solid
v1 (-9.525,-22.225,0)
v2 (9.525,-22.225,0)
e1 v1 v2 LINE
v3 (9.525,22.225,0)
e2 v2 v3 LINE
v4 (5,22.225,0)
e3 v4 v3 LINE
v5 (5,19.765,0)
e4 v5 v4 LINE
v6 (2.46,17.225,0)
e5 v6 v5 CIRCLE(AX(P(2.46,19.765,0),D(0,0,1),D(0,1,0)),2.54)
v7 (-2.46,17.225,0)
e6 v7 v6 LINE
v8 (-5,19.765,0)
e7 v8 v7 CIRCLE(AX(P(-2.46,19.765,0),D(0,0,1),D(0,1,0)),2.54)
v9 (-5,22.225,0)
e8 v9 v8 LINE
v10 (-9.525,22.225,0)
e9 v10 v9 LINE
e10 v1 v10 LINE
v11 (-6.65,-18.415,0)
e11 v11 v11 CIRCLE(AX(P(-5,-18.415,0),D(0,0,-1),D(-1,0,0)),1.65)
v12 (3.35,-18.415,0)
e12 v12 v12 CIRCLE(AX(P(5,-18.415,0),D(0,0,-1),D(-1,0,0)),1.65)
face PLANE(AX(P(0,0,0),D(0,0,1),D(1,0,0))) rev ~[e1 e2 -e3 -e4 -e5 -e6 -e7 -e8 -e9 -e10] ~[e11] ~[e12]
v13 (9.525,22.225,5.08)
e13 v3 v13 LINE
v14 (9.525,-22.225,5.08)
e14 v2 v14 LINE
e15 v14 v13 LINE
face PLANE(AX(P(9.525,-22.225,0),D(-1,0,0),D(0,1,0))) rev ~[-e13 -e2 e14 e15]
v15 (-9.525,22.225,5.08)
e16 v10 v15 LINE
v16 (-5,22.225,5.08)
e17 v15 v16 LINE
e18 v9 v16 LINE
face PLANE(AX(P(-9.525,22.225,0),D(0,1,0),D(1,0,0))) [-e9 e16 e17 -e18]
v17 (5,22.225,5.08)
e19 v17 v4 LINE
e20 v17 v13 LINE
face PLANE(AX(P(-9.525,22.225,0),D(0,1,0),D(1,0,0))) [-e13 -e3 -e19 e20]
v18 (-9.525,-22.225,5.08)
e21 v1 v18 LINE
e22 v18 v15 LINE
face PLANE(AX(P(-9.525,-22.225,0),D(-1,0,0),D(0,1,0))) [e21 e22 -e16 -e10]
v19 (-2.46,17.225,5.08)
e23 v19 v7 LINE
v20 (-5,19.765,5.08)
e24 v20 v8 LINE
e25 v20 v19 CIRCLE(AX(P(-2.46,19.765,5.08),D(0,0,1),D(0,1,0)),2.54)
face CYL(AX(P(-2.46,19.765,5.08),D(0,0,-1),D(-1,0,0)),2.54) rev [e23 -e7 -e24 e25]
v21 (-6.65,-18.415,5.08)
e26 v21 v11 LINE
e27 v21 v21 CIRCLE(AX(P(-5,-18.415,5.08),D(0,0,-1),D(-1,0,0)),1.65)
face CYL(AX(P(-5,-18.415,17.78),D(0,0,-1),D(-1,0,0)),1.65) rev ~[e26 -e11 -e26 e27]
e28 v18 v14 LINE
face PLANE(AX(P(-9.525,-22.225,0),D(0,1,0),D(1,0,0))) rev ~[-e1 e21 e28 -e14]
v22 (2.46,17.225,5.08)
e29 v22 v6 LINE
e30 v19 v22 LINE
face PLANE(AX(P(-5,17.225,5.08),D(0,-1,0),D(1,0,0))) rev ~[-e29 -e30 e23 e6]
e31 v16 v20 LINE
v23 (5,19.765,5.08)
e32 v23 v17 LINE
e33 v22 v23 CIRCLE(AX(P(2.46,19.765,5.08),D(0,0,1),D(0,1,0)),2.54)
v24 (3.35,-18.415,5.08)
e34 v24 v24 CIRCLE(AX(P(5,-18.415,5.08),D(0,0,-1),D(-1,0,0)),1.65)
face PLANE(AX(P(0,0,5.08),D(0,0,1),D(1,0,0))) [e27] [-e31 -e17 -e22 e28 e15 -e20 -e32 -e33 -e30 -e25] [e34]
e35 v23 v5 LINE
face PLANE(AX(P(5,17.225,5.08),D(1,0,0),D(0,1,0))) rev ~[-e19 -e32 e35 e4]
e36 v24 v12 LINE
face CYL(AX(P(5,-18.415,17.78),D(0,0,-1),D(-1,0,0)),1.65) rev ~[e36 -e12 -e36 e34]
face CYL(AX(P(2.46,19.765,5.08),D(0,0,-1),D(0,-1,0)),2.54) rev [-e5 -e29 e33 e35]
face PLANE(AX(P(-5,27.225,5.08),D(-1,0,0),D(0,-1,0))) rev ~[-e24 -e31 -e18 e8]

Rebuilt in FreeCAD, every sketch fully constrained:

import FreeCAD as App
import Part
import Sketcher

V = App.Vector
Q = App.Units.Quantity


def edges_at(feature, points):
    """Names of the edges that pass closest to the given points."""
    edges = feature.Shape.Edges
    near = lambda p: min(range(len(edges)), key=lambda i: edges[i].distToShape(Part.Vertex(*p))[0])
    return sorted({f"Edge{near(p) + 1}" for p in points})


def add_polygon(sketch, points):
    """Adds a closed chain of lines whose ends are joined by coincident constraints."""
    first, n = sketch.GeometryCount, len(points)
    for a, b in zip(points, points[1:] + points[:1]):
        sketch.addGeometry(Part.LineSegment(App.Vector(*a, 0), App.Vector(*b, 0)), False)
    for i in range(n):
        sketch.addConstraint(Sketcher.Constraint("Coincident", first + i, 2, first + (i + 1) % n, 1))

doc = App.newDocument("Part")
body = doc.addObject("PartDesign::Body", "Body")

# Sketch on XY plane
sketch1 = doc.addObject("Sketcher::SketchObject", "Sketch")
body.addObject(sketch1)
sketch1.AttachmentSupport = (doc.XY_Plane, [""])
sketch1.MapMode = "FlatFace"
add_polygon(sketch1, [(-10, 22), (-10, -22), (10, -22), (10, 22)])  # lines 0-3
sketch1.addConstraint([
    Sketcher.Constraint("Vertical", 0),
    Sketcher.Constraint("Horizontal", 1),
    Sketcher.Constraint("Vertical", 2),
    Sketcher.Constraint("Horizontal", 3),
    Sketcher.Constraint("Symmetric", 0, 2, 2, 2, -1, 1),
    Sketcher.Constraint("DistanceX", 1, 1, 1, 2, Q("0.75 in")),
    Sketcher.Constraint("DistanceY", 0, 2, 0, 1, Q("1.75 in")),
])
pad1 = doc.addObject("PartDesign::Pad", "Pad")
body.addObject(pad1)
pad1.Profile = sketch1
pad1.Length = Q("0.2 in")

# Sketch on XY plane
sketch2 = doc.addObject("Sketcher::SketchObject", "Sketch001")
body.addObject(sketch2)
sketch2.AttachmentSupport = (doc.XY_Plane, [""])
sketch2.MapMode = "FlatFace"
sketch2.AttachmentOffset = App.Placement(V(0, 0, 0.2 * 25.4), App.Rotation())
add_polygon(sketch2, [(-5, 27), (-5, 17), (5, 17), (5, 27)])  # lines 0-3
sketch2.addConstraint([
    Sketcher.Constraint("Vertical", 0),
    Sketcher.Constraint("Horizontal", 1),
    Sketcher.Constraint("Vertical", 2),
    Sketcher.Constraint("Horizontal", 3),
    Sketcher.Constraint("Equal", 3, 0),
    Sketcher.Constraint("DistanceX", 1, 1, 1, 2, 10.0),
    Sketcher.Constraint("DistanceX", 0, 2, -1, 1, 5.0),
    Sketcher.Constraint("DistanceY", -1, 1, 0, 2, 17.225),
])
pocket1 = doc.addObject("PartDesign::Pocket", "Pocket")
body.addObject(pocket1)
pocket1.Profile = sketch2
pocket1.Length = Q("1 in")
doc.recompute()

fillet = doc.addObject("PartDesign::Fillet", "Fillet")
body.addObject(fillet)
fillet.Base = (pocket1, edges_at(pocket1, [(-5, 17.225, 2.54), (5, 17.225, 2.54)]))
fillet.Radius = Q("0.1 in")

# Sketch on XY plane
sketch3 = doc.addObject("Sketcher::SketchObject", "Sketch002")
body.addObject(sketch3)
sketch3.AttachmentSupport = (doc.XY_Plane, [""])
sketch3.MapMode = "FlatFace"
sketch3.AttachmentOffset = App.Placement(V(0, 0, 0.2 * 25.4), App.Rotation())
sketch3.addGeometry([
    Part.Circle(V(-5, -18.4, 0), V(0, 0, 1), 1.6),
    Part.Circle(V(5, -18.4, 0), V(0, 0, 1), 1.6),
], False)
sketch3.addConstraint([
    Sketcher.Constraint("Equal", 0, 1),
    Sketcher.Constraint("Symmetric", 0, 3, 1, 3, -2),
    Sketcher.Constraint("Diameter", 0, 3.3),
    Sketcher.Constraint("DistanceY", 0, 3, -1, 1, Q("0.725 in")),
    Sketcher.Constraint("DistanceX", 0, 3, -1, 1, 5.0),
])
doc.recompute()
hole = doc.addObject("PartDesign::Hole", "Hole")
body.addObject(hole)
hole.Profile = sketch3
hole.ThreadType = "None"
hole.Diameter = 3.3
hole.DepthType = "Dimension"
hole.Depth = Q("0.5 in")
hole.DrillPoint = "Angled"
hole.DrillPointAngle = 118

doc.recompute()
